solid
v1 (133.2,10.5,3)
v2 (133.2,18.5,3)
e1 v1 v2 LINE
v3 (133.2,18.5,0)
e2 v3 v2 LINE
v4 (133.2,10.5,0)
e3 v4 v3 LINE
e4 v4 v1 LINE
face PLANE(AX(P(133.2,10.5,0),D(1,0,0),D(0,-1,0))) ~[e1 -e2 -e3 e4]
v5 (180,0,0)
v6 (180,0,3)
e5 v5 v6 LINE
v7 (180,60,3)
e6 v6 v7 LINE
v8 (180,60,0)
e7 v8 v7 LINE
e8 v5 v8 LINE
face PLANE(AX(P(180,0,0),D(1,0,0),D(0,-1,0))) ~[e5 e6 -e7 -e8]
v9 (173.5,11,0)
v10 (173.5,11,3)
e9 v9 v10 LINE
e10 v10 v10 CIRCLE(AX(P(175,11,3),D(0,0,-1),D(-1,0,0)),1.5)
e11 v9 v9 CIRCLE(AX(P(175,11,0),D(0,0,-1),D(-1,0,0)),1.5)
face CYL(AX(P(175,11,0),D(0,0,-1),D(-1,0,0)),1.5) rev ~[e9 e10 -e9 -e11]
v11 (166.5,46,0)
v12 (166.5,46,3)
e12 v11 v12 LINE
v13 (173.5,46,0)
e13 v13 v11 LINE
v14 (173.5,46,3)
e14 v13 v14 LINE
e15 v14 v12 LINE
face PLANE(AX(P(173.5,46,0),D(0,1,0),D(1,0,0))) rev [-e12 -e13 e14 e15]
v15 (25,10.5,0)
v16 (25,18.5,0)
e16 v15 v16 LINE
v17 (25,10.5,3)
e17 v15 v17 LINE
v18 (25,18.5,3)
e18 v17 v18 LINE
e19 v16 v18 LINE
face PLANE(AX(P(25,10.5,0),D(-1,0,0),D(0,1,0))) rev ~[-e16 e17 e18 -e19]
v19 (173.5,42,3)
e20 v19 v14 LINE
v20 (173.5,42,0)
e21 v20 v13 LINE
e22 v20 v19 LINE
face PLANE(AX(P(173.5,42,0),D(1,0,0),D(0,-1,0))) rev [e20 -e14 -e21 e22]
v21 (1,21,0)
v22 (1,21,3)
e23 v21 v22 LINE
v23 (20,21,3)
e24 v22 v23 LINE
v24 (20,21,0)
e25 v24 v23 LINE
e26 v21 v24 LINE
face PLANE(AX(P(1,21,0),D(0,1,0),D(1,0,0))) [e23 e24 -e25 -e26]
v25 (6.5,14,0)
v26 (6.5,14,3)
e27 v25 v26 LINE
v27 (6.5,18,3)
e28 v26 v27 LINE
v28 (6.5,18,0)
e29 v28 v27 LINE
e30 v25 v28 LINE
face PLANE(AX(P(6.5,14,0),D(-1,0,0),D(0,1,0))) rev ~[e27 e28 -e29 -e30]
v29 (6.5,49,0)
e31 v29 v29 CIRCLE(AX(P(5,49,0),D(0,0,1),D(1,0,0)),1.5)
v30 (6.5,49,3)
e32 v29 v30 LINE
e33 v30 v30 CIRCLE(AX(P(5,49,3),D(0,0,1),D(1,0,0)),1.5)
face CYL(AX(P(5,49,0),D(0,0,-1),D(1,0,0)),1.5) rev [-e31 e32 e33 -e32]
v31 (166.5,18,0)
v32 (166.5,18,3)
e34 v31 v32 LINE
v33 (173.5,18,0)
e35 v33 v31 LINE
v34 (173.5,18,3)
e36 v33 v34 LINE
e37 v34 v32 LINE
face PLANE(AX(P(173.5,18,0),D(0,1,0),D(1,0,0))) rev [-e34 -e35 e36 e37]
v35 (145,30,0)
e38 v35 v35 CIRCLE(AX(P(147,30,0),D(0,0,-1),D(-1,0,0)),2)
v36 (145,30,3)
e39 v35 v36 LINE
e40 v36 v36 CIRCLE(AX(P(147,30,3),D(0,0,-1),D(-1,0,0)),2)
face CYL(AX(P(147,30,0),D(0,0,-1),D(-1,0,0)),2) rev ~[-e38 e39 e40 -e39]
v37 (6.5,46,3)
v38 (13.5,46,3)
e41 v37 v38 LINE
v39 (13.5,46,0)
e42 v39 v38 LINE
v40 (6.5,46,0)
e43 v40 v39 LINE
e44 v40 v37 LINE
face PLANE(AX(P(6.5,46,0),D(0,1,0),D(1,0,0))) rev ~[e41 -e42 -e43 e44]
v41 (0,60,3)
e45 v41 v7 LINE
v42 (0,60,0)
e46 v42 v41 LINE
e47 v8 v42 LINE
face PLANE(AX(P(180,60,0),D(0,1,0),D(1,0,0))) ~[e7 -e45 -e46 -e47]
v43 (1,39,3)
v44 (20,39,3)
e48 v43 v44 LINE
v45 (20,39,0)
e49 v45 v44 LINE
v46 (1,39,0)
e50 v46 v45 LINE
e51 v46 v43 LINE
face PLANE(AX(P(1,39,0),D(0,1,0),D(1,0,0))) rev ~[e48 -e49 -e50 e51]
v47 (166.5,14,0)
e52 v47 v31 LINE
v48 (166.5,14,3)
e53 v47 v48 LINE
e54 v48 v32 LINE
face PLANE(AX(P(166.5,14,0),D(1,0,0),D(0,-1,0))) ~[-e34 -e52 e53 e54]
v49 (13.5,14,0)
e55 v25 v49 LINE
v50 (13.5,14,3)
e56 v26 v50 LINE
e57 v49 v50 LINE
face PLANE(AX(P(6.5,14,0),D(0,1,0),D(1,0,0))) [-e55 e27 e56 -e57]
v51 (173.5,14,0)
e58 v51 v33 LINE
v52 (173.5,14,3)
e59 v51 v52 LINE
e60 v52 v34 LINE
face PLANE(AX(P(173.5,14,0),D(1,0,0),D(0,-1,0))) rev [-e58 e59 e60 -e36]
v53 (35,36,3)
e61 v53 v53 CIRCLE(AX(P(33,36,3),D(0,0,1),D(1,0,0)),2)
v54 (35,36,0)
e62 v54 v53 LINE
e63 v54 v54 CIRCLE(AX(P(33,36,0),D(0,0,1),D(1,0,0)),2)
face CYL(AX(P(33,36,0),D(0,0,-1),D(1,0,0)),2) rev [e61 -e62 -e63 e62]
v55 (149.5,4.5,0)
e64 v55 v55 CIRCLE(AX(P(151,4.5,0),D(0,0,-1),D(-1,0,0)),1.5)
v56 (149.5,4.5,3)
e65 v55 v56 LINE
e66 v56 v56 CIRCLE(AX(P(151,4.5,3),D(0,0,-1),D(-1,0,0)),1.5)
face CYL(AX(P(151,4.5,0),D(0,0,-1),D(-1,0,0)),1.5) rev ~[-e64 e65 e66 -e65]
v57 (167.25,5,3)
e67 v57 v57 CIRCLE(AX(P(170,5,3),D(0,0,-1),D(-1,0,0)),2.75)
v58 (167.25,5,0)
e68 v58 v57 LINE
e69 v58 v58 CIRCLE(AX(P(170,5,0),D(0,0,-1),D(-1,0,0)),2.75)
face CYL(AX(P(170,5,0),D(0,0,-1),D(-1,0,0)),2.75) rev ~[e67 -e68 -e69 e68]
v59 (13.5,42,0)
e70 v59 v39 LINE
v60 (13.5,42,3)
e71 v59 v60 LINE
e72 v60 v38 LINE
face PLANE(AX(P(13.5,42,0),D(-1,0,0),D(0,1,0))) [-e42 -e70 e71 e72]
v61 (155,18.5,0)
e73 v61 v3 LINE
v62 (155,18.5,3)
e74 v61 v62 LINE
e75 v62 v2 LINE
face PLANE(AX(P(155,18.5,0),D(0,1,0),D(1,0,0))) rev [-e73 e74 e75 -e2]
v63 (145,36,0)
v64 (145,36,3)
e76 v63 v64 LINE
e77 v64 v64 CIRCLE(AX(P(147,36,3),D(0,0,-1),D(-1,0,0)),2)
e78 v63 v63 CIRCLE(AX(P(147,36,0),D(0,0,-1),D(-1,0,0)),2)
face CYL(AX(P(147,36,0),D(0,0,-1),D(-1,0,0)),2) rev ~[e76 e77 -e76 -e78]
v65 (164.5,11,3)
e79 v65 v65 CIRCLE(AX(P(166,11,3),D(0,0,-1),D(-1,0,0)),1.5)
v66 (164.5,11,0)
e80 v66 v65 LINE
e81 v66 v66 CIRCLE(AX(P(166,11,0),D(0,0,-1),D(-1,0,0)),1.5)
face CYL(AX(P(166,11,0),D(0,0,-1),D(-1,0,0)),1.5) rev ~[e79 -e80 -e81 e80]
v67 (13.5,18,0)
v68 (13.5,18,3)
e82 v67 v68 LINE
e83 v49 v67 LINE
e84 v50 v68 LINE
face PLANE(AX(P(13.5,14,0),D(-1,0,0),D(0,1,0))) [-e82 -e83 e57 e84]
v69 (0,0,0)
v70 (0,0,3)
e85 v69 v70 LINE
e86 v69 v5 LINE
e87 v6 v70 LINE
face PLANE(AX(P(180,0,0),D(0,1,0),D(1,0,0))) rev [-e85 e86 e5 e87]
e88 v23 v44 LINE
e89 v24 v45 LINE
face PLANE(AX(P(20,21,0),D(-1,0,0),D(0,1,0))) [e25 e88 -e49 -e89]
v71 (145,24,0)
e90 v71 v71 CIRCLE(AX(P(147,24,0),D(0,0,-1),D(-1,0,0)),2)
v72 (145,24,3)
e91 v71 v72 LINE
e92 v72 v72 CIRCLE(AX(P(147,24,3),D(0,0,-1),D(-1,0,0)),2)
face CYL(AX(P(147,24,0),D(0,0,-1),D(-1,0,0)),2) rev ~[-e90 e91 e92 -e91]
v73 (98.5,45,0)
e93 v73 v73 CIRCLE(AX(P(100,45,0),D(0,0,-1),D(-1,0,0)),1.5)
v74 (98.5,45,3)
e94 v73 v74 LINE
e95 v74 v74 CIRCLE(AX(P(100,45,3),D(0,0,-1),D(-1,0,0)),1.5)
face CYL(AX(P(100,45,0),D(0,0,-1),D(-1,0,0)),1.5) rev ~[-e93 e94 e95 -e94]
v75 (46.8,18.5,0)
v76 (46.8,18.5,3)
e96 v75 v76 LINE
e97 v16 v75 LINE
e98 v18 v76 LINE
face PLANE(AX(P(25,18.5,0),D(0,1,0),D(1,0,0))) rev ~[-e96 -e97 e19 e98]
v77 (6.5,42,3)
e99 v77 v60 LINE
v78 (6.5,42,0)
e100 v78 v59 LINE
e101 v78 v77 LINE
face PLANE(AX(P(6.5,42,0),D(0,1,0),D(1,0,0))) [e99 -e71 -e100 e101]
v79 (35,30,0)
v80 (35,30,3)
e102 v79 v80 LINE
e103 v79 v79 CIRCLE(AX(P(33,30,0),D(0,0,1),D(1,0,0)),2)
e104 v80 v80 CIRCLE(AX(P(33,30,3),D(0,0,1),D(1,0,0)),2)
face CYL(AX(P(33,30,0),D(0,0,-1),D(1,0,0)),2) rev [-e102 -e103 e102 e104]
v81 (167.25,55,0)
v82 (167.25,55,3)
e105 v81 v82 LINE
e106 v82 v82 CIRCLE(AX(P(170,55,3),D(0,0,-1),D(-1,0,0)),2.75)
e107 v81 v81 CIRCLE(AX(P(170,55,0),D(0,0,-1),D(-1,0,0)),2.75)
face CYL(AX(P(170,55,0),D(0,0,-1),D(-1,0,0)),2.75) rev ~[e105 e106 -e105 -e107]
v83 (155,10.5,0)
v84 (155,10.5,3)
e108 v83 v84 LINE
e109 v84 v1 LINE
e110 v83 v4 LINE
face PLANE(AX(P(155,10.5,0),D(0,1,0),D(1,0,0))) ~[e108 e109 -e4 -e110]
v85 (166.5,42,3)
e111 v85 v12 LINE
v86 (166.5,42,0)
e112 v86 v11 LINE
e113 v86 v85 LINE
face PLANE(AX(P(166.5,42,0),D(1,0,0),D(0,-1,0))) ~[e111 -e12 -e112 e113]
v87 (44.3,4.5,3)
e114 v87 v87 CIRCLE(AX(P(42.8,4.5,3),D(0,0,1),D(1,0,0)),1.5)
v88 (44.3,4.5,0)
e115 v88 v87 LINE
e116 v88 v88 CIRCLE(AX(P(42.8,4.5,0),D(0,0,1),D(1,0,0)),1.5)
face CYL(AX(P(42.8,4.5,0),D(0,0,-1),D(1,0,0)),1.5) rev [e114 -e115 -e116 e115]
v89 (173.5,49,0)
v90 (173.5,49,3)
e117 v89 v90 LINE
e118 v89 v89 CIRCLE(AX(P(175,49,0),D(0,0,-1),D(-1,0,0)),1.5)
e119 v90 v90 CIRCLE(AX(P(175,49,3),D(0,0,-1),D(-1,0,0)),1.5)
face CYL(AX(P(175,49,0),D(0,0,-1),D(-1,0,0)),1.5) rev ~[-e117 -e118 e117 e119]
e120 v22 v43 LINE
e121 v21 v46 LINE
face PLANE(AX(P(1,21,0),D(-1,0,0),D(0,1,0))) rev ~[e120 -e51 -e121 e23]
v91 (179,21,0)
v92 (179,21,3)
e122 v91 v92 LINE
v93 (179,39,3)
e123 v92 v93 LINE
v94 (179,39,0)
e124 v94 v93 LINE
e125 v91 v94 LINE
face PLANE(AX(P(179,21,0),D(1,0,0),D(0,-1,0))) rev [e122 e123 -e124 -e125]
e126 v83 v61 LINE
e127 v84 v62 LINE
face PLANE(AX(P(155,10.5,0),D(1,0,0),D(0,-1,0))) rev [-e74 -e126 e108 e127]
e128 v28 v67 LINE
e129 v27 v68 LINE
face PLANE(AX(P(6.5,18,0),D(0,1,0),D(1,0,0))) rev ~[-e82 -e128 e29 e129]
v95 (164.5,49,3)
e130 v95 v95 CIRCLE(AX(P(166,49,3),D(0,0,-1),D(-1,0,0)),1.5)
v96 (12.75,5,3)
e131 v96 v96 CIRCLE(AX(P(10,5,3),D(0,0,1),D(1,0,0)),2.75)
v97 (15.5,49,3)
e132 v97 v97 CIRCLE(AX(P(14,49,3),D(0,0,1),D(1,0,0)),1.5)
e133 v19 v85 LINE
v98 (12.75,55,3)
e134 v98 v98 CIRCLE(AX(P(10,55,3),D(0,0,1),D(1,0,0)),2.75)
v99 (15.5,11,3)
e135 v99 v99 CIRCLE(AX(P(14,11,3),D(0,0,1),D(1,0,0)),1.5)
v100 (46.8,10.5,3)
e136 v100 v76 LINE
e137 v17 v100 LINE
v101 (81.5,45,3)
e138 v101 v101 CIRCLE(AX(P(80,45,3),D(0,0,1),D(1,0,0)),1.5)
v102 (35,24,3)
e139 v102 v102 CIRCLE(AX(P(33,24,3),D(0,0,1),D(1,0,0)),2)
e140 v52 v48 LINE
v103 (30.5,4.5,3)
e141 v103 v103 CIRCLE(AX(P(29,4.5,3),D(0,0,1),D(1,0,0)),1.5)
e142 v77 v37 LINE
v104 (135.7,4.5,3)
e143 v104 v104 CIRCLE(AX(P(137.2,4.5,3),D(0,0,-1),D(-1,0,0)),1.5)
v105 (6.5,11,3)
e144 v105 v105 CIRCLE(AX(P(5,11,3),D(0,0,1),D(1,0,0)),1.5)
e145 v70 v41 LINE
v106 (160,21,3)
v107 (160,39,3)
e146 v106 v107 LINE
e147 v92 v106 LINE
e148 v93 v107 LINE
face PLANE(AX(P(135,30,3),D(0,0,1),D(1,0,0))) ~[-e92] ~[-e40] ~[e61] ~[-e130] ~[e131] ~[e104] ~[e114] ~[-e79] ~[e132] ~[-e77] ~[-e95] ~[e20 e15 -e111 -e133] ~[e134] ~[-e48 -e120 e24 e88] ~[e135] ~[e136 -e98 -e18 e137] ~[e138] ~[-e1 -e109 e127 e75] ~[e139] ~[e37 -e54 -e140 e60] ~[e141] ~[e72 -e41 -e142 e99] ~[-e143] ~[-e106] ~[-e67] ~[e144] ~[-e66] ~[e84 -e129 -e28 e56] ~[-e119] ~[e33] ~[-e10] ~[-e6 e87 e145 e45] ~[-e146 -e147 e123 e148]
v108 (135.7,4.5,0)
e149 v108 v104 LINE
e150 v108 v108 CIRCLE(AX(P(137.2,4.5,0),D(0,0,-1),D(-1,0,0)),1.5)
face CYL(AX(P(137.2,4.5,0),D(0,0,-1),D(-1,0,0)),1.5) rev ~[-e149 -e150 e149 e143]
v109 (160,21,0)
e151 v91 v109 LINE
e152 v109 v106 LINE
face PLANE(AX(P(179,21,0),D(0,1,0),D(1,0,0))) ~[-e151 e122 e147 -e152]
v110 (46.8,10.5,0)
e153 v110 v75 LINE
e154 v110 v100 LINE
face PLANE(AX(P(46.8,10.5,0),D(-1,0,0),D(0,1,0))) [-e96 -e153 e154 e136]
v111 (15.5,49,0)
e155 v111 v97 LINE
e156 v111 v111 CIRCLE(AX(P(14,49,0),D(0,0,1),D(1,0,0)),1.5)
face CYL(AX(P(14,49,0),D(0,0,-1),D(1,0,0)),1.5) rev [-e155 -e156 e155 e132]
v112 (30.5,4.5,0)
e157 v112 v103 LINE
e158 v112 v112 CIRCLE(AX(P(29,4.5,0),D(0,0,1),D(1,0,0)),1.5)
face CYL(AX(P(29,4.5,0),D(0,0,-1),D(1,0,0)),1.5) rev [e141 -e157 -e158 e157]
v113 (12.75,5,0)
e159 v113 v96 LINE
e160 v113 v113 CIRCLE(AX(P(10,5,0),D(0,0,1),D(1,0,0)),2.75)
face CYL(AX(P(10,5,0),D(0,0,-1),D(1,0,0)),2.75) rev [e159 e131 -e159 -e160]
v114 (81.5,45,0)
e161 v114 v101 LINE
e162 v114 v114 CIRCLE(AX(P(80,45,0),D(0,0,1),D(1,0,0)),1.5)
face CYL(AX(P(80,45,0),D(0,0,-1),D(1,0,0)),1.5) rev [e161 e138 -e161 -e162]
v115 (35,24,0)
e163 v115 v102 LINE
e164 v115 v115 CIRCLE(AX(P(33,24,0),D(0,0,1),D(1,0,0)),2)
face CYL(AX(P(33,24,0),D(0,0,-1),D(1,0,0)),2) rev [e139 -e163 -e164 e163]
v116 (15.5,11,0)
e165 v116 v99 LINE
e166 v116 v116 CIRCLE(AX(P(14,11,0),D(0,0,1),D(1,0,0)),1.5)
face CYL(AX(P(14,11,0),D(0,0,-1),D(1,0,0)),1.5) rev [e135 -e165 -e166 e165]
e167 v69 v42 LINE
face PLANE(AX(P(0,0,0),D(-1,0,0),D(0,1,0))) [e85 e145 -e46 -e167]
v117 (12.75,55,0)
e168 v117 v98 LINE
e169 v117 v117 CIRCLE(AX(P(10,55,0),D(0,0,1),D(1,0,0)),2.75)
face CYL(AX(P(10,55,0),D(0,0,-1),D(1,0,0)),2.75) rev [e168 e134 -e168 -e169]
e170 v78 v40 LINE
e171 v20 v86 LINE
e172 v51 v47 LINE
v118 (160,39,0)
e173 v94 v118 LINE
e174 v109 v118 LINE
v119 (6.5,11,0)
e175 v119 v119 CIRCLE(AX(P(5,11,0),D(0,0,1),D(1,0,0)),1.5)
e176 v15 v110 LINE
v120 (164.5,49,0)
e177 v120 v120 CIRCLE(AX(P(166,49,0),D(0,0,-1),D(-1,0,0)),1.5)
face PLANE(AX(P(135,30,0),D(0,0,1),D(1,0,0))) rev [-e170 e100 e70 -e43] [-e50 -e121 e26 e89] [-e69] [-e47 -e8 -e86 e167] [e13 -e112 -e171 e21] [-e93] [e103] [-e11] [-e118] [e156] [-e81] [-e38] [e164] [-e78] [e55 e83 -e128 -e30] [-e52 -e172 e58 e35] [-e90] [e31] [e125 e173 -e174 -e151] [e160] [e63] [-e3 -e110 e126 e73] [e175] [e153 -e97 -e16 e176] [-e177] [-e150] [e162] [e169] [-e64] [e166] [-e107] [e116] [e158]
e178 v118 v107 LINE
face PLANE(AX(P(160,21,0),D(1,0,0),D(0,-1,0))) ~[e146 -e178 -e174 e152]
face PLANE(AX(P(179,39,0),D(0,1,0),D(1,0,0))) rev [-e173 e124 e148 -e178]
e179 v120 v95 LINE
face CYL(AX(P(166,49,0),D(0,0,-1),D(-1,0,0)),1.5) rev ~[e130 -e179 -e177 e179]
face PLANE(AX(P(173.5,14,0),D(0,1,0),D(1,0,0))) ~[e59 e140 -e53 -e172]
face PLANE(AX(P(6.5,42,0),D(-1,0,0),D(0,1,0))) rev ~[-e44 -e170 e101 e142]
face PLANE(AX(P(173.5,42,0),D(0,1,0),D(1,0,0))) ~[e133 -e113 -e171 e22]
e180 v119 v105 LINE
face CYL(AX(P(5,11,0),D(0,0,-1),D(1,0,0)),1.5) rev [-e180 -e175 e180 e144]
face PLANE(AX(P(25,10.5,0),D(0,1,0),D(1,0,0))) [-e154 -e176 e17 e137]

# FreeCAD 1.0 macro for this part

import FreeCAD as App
import Part
import Sketcher

V = App.Vector


def add_polygon(sketch, points):
    """Adds a closed chain of lines whose ends are joined by coincident constraints."""
    first, n = sketch.GeometryCount, len(points)
    for a, b in zip(points, points[1:] + points[:1]):
        sketch.addGeometry(Part.LineSegment(App.Vector(*a, 0), App.Vector(*b, 0)), False)
    for i in range(n):
        sketch.addConstraint(Sketcher.Constraint("Coincident", first + i, 2, first + (i + 1) % n, 1))

doc = App.newDocument("Part")
body = doc.addObject("PartDesign::Body", "Body")

# Sketch on XY plane
sketch1 = body.newObject("Sketcher::SketchObject", "Sketch")
sketch1.AttachmentSupport = (doc.getObject("XY_Plane"), [""])
sketch1.MapMode = "FlatFace"
add_polygon(sketch1, [(0, 60), (0, 0), (90, 0), (90, 60)])  # lines 0-3
sketch1.addGeometry(Part.Circle(V(10, 5, 0), V(0, 0, 1), 2.8), False)  # 4
sketch1.addGeometry(Part.Circle(V(5, 11, 0), V(0, 0, 1), 1.5), False)  # 5
add_polygon(sketch1, [(13.5, 14), (6.5, 14), (6.5, 18), (13.5, 18)])  # lines 6-9
sketch1.addGeometry(Part.Circle(V(14, 11, 0), V(0, 0, 1), 1.5), False)  # 10
sketch1.addGeometry(Part.Circle(V(29, 4.5, 0), V(0, 0, 1), 1.5), False)  # 11
add_polygon(sketch1, [(46.8, 10.5), (25, 10.5), (25, 18.5), (46.8, 18.5)])  # lines 12-15
sketch1.addGeometry(Part.Circle(V(33, 24, 0), V(0, 0, 1), 2), False)  # 16
sketch1.addGeometry(Part.Circle(V(42.8, 4.5, 0), V(0, 0, 1), 1.5), False)  # 17
add_polygon(sketch1, [(20, 21), (1, 21), (1, 39), (20, 39)])  # lines 18-21
sketch1.addGeometry(Part.Circle(V(33, 30, 0), V(0, 0, 1), 2), False)  # 22
sketch1.addGeometry(Part.Circle(V(33, 36, 0), V(0, 0, 1), 2), False)  # 23
add_polygon(sketch1, [(13.5, 42), (6.5, 42), (6.5, 46), (13.5, 46)])  # lines 24-27
sketch1.addGeometry(Part.Circle(V(5, 49, 0), V(0, 0, 1), 1.5), False)  # 28
sketch1.addGeometry(Part.Circle(V(14, 49, 0), V(0, 0, 1), 1.5), False)  # 29
sketch1.addGeometry(Part.Circle(V(10, 55, 0), V(0, 0, 1), 2.8), False)  # 30
sketch1.addGeometry(Part.Circle(V(80, 45, 0), V(0, 0, 1), 1.5), False)  # 31
sketch1.addConstraint(Sketcher.Constraint("Vertical", 0))
sketch1.addConstraint(Sketcher.Constraint("Horizontal", 1))
sketch1.addConstraint(Sketcher.Constraint("Vertical", 2))
sketch1.addConstraint(Sketcher.Constraint("Horizontal", 3))
sketch1.addConstraint(Sketcher.Constraint("Horizontal", 6))
sketch1.addConstraint(Sketcher.Constraint("Vertical", 7))
sketch1.addConstraint(Sketcher.Constraint("Horizontal", 8))
sketch1.addConstraint(Sketcher.Constraint("Vertical", 9))
sketch1.addConstraint(Sketcher.Constraint("Horizontal", 12))
sketch1.addConstraint(Sketcher.Constraint("Vertical", 13))
sketch1.addConstraint(Sketcher.Constraint("Horizontal", 14))
sketch1.addConstraint(Sketcher.Constraint("Vertical", 15))
sketch1.addConstraint(Sketcher.Constraint("Horizontal", 18))
sketch1.addConstraint(Sketcher.Constraint("Vertical", 19))
sketch1.addConstraint(Sketcher.Constraint("Horizontal", 20))
sketch1.addConstraint(Sketcher.Constraint("Vertical", 21))
sketch1.addConstraint(Sketcher.Constraint("Horizontal", 24))
sketch1.addConstraint(Sketcher.Constraint("Vertical", 25))
sketch1.addConstraint(Sketcher.Constraint("Horizontal", 26))
sketch1.addConstraint(Sketcher.Constraint("Vertical", 27))
sketch1.addConstraint(Sketcher.Constraint("Coincident", 0, 2, -1, 1))
sketch1.addConstraint(Sketcher.Constraint("Equal", 5, 10))
sketch1.addConstraint(Sketcher.Constraint("Equal", 10, 11))
sketch1.addConstraint(Sketcher.Constraint("Equal", 11, 17))
sketch1.addConstraint(Sketcher.Constraint("Equal", 16, 22))
sketch1.addConstraint(Sketcher.Constraint("Equal", 22, 23))
sketch1.addConstraint(Sketcher.Constraint("Equal", 17, 28))
sketch1.addConstraint(Sketcher.Constraint("Equal", 28, 29))
sketch1.addConstraint(Sketcher.Constraint("Equal", 4, 30))
sketch1.addConstraint(Sketcher.Constraint("Equal", 29, 31))
sketch1.addConstraint(Sketcher.Constraint("Horizontal", 5, 3, 10, 3))
sketch1.addConstraint(Sketcher.Constraint("Horizontal", 11, 3, 17, 3))
sketch1.addConstraint(Sketcher.Constraint("Horizontal", 28, 3, 29, 3))
sketch1.addConstraint(Sketcher.Constraint("Vertical", 16, 3, 22, 3))
sketch1.addConstraint(Sketcher.Constraint("Vertical", 22, 3, 23, 3))
sketch1.addConstraint(Sketcher.Constraint("Vertical", 5, 3, 28, 3))
sketch1.addConstraint(Sketcher.Constraint("Vertical", 10, 3, 29, 3))
sketch1.addConstraint(Sketcher.Constraint("Vertical", 4, 3, 30, 3))
sketch1.addConstraint(Sketcher.Constraint("Vertical", 7, 2, 24, 2))
sketch1.addConstraint(Sketcher.Constraint("Vertical", 9, 2, 26, 2))
sketch1.addConstraint(Sketcher.Constraint("Equal", 9, 25))
sketch1.addConstraint(Sketcher.Constraint("Diameter", 5, 3.0))
sketch1.addConstraint(Sketcher.Constraint("Diameter", 16, 4.0))
sketch1.addConstraint(Sketcher.Constraint("Diameter", 4, 5.5))
sketch1.addConstraint(Sketcher.Constraint("DistanceX", 1, 1, 1, 2, 90.0))
sketch1.addConstraint(Sketcher.Constraint("DistanceX", 6, 2, 6, 1, 7.0))
sketch1.addConstraint(Sketcher.Constraint("DistanceX", 18, 2, 18, 1, 19.0))
sketch1.addConstraint(Sketcher.Constraint("DistanceY", 0, 2, 0, 1, 60.0))
sketch1.addConstraint(Sketcher.Constraint("DistanceY", 7, 1, 7, 2, 4.0))
sketch1.addConstraint(Sketcher.Constraint("DistanceY", 13, 1, 13, 2, 8.0))
sketch1.addConstraint(Sketcher.Constraint("DistanceY", 19, 1, 19, 2, 18.0))
sketch1.addConstraint(Sketcher.Constraint("DistanceX", 12, 2, 12, 1, 21.8))
sketch1.addConstraint(Sketcher.Constraint("DistanceX", -1, 1, 4, 3, 10.0))
sketch1.addConstraint(Sketcher.Constraint("DistanceY", -1, 1, 4, 3, 5.0))
sketch1.addConstraint(Sketcher.Constraint("DistanceX", -1, 1, 5, 3, 5.0))
sketch1.addConstraint(Sketcher.Constraint("DistanceY", -1, 1, 5, 3, 11.0))
sketch1.addConstraint(Sketcher.Constraint("DistanceX", -1, 1, 10, 3, 14.0))
sketch1.addConstraint(Sketcher.Constraint("DistanceX", -1, 1, 11, 3, 29.0))
sketch1.addConstraint(Sketcher.Constraint("DistanceX", -1, 1, 16, 3, 33.0))
sketch1.addConstraint(Sketcher.Constraint("DistanceY", -1, 1, 16, 3, 24.0))
sketch1.addConstraint(Sketcher.Constraint("DistanceY", -1, 1, 22, 3, 30.0))
sketch1.addConstraint(Sketcher.Constraint("DistanceY", -1, 1, 23, 3, 36.0))
sketch1.addConstraint(Sketcher.Constraint("DistanceY", -1, 1, 28, 3, 49.0))
sketch1.addConstraint(Sketcher.Constraint("DistanceY", -1, 1, 30, 3, 55.0))
sketch1.addConstraint(Sketcher.Constraint("DistanceX", -1, 1, 31, 3, 80.0))
sketch1.addConstraint(Sketcher.Constraint("DistanceY", -1, 1, 31, 3, 45.0))
sketch1.addConstraint(Sketcher.Constraint("DistanceY", -1, 1, 6, 2, 14.0))
sketch1.addConstraint(Sketcher.Constraint("DistanceX", -1, 1, 12, 2, 25.0))
sketch1.addConstraint(Sketcher.Constraint("DistanceX", -1, 1, 18, 2, 1.0))
sketch1.addConstraint(Sketcher.Constraint("DistanceY", -1, 1, 18, 2, 21.0))
sketch1.addConstraint(Sketcher.Constraint("DistanceY", -1, 1, 24, 2, 42.0))
sketch1.addConstraint(Sketcher.Constraint("DistanceY", 11, 3, 12, 2, 6.0))
sketch1.addConstraint(Sketcher.Constraint("DistanceX", 17, 3, 14, 2, 4.0))
sketch1.addConstraint(Sketcher.Constraint("DistanceY", -1, 1, 11, 3, 4.5))
sketch1.addConstraint(Sketcher.Constraint("DistanceX", -1, 1, 6, 2, 6.5))
pad1 = body.newObject("PartDesign::Pad", "Pad")
pad1.Profile = sketch1
pad1.Length = 3
doc.recompute()

datumplane = body.newObject("PartDesign::Plane", "DatumPlane")
datumplane.AttachmentSupport = (doc.getObject("YZ_Plane"), [""])
datumplane.MapMode = "FlatFace"
datumplane.AttachmentOffset = App.Placement(V(0, 0, 90), App.Rotation())
mirrored = body.newObject("PartDesign::Mirrored", "Mirrored")
mirrored.Originals = [pad1]
mirrored.MirrorPlane = (datumplane, [""])
body.Tip = mirrored

doc.recompute()
